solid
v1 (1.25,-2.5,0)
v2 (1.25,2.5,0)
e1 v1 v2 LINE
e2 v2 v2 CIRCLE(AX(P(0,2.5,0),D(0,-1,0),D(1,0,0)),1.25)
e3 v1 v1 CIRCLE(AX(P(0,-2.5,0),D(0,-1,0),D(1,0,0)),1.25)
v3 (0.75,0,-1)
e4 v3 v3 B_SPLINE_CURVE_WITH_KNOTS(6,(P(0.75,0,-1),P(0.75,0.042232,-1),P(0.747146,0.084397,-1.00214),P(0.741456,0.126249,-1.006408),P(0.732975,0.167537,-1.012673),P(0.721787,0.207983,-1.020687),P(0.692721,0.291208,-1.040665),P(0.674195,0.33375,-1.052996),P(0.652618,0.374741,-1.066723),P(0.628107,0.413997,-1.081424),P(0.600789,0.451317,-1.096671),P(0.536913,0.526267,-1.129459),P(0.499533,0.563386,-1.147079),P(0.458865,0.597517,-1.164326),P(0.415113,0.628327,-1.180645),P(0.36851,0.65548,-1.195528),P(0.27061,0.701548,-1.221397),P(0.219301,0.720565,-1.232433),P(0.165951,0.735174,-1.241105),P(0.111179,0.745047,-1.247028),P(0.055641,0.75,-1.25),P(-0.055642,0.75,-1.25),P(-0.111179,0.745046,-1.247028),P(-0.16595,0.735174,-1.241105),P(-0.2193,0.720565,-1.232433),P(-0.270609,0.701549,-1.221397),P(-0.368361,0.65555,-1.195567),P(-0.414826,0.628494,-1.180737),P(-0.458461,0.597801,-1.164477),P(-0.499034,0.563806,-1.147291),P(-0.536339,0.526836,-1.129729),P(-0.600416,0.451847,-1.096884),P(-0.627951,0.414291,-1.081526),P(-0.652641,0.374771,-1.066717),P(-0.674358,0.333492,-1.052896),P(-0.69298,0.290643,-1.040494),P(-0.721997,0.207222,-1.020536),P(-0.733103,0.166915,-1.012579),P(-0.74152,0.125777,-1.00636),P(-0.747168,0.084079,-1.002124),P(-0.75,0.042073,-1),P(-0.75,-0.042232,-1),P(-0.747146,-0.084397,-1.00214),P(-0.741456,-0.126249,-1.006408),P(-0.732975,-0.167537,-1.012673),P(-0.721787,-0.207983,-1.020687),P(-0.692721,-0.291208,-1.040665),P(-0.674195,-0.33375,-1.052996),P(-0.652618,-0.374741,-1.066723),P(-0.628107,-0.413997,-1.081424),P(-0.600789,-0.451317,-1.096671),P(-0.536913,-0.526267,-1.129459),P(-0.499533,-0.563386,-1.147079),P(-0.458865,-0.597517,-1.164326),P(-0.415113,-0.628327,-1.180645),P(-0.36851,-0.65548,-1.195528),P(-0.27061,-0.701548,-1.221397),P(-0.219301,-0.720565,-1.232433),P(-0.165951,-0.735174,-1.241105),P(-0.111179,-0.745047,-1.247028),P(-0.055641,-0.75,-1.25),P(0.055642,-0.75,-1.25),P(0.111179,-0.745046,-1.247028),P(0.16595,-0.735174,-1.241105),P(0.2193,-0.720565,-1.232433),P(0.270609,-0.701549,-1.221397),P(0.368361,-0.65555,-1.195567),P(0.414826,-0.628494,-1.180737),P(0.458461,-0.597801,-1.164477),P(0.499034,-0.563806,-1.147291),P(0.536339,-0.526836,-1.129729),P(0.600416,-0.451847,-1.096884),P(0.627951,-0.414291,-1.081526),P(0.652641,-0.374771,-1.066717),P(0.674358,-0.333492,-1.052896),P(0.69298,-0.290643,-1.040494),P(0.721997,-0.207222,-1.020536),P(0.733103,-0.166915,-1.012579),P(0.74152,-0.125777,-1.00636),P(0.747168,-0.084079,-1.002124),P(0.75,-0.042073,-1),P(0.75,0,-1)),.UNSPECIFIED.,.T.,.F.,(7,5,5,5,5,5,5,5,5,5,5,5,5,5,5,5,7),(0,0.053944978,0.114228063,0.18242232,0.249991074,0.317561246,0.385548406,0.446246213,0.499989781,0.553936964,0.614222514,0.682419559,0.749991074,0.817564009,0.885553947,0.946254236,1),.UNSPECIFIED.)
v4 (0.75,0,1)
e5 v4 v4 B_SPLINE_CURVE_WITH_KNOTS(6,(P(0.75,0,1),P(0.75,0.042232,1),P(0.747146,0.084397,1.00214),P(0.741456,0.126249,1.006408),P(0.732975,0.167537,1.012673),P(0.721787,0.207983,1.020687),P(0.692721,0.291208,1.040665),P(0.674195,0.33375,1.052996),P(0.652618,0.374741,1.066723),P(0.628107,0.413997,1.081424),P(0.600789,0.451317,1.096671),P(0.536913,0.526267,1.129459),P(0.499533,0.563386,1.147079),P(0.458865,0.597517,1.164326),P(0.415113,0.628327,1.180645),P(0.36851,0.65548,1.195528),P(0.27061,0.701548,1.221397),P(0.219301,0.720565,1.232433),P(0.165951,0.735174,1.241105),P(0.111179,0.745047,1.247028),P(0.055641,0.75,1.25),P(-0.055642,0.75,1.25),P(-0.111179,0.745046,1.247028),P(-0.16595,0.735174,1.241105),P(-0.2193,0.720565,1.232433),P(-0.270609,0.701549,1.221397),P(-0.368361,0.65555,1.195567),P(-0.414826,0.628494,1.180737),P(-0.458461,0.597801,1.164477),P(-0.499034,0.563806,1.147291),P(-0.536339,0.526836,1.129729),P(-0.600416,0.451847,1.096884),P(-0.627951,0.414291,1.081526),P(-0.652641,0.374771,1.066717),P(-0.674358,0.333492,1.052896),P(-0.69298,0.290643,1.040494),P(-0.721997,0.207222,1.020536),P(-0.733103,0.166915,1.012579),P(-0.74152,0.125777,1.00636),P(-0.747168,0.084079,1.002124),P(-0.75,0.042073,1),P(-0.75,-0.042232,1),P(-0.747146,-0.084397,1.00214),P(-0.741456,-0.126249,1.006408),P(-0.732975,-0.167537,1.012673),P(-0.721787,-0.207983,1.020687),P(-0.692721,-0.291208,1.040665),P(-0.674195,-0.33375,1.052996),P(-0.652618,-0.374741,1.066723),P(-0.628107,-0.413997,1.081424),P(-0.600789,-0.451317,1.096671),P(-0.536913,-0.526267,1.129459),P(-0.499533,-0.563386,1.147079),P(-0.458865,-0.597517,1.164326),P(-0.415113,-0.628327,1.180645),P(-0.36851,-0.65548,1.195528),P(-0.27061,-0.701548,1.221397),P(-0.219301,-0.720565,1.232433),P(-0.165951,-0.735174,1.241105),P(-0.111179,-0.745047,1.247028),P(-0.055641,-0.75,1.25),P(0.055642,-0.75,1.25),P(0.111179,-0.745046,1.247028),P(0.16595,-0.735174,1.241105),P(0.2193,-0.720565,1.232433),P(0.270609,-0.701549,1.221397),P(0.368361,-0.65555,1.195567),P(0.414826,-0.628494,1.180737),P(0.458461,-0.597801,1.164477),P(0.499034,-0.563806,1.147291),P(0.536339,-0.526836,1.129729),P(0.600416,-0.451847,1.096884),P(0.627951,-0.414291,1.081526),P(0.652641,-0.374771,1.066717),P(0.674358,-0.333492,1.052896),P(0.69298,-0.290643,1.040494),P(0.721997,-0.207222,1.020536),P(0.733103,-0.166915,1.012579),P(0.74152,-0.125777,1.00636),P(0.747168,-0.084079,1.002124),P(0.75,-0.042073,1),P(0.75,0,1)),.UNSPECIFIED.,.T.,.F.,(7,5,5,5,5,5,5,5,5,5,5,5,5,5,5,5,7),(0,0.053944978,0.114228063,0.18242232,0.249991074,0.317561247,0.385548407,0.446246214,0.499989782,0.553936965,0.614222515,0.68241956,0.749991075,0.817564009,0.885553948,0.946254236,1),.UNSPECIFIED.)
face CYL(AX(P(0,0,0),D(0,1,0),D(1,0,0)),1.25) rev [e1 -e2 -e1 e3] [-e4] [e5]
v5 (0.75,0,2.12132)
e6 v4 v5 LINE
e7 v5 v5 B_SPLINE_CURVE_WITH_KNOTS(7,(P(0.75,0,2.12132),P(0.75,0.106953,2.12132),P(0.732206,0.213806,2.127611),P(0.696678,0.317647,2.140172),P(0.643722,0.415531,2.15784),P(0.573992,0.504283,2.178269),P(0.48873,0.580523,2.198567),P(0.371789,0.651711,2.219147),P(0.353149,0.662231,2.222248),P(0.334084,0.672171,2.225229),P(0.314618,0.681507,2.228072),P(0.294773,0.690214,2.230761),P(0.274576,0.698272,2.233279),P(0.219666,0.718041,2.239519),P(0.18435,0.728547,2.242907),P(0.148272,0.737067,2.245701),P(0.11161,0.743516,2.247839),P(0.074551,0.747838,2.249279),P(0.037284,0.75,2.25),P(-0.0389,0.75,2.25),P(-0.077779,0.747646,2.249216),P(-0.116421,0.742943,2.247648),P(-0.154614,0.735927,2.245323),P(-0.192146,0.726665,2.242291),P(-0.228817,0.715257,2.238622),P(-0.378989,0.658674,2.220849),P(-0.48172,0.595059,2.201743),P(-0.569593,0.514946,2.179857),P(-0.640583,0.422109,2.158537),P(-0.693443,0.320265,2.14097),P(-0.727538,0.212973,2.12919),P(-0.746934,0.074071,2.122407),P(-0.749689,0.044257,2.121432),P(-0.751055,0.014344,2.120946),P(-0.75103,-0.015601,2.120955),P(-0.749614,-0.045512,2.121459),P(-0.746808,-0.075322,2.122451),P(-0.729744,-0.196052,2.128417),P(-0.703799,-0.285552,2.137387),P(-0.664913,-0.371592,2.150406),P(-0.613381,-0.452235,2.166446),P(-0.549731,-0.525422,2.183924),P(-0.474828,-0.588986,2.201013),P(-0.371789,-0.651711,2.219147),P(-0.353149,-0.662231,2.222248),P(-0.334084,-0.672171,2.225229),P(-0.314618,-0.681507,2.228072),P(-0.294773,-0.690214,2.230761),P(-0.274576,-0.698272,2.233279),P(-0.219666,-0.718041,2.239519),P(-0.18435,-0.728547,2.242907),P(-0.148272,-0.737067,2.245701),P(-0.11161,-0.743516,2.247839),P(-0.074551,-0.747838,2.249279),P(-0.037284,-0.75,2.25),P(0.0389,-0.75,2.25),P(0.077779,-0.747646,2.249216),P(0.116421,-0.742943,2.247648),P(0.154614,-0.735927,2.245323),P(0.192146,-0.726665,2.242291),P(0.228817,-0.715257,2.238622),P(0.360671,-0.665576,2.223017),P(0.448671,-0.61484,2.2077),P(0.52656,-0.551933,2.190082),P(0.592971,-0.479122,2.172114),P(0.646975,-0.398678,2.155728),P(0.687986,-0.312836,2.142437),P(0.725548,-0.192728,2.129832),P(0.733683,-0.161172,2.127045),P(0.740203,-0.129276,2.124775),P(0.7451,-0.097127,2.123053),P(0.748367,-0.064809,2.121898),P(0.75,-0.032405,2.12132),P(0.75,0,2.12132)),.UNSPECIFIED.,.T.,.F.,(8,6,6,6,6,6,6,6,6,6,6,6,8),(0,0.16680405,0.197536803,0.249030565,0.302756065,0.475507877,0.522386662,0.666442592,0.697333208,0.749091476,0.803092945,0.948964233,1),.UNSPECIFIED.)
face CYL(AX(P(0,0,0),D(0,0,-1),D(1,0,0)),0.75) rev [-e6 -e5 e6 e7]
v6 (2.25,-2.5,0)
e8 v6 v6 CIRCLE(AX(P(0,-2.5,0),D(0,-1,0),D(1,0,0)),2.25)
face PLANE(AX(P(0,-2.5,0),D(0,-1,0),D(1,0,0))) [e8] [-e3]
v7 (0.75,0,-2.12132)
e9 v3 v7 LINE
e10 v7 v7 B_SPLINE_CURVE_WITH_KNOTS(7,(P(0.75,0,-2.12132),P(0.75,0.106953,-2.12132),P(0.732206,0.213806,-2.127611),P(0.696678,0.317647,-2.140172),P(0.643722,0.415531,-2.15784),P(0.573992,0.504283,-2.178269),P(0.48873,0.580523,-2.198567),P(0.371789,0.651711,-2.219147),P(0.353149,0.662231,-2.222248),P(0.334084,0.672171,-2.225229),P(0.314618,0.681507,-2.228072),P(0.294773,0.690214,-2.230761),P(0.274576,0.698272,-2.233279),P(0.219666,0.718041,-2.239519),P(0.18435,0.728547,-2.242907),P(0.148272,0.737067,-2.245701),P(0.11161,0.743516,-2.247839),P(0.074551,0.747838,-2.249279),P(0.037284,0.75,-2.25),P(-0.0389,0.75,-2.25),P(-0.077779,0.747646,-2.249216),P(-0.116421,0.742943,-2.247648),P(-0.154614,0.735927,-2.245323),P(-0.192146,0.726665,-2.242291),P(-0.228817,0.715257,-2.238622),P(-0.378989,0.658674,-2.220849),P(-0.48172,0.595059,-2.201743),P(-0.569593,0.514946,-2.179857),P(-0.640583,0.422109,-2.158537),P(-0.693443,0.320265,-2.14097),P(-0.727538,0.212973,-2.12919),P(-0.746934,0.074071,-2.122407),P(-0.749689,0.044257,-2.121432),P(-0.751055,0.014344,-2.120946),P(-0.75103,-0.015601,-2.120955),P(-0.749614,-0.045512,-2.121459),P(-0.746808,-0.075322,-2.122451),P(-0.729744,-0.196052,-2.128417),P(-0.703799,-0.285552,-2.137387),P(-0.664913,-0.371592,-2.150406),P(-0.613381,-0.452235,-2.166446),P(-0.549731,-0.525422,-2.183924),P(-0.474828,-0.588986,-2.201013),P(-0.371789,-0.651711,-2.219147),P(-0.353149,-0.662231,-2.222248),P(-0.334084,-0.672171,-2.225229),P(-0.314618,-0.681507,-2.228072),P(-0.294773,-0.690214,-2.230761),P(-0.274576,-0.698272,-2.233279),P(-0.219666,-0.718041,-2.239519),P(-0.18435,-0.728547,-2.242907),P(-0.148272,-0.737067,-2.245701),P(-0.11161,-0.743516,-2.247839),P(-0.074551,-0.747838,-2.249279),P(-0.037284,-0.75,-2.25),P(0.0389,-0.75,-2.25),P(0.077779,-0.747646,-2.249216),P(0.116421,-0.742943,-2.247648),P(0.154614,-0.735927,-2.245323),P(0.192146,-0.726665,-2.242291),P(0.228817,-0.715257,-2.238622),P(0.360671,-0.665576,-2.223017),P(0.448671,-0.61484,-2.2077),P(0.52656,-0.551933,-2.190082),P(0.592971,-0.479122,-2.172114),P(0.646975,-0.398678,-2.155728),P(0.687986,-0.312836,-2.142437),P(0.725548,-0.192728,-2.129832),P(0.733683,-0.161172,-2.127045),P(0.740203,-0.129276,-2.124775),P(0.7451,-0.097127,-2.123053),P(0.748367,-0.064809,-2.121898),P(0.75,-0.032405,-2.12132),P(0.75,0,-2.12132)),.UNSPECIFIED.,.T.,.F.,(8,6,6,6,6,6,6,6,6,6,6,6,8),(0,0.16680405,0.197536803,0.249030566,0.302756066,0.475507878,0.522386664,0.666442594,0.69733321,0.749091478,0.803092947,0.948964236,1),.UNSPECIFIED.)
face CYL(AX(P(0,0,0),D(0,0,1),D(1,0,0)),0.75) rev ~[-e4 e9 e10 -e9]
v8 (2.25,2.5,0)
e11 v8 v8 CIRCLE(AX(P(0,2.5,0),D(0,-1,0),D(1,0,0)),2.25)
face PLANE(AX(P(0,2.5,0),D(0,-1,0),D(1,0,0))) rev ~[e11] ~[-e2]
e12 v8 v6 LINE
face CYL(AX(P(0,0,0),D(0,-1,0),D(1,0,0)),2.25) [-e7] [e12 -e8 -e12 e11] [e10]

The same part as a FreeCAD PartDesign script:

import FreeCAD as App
import Part
import Sketcher

doc = App.newDocument("Part")
body = doc.addObject("PartDesign::Body", "Body")

sketch1 = body.newObject("Sketcher::SketchObject", "Sketch")
sketch1.AttachmentSupport = (doc.getObject("XZ_Plane"), [""])
sketch1.MapMode = "FlatFace"
sketch1.addGeometry(Part.Circle(App.Vector(0, 0, 0), App.Vector(0, 0, 1), 2.25), False)
sketch1.addGeometry(Part.Circle(App.Vector(0, 0, 0), App.Vector(0, 0, 1), 1.25), False)
sketch1.addConstraint(Sketcher.Constraint("Coincident", 0, 3, -1, 1))
sketch1.addConstraint(Sketcher.Constraint("Coincident", 1, 3, -1, 1))
sketch1.addConstraint(Sketcher.Constraint("Diameter", 0, 4.5))
sketch1.addConstraint(Sketcher.Constraint("Diameter", 1, 2.5))
pad1 = body.newObject("PartDesign::Pad", "Pad")
pad1.Profile = sketch1
pad1.Length = 5
pad1.Midplane = True

sketch2 = body.newObject("Sketcher::SketchObject", "Sketch001")
sketch2.AttachmentSupport = (doc.getObject("XY_Plane"), [""])
sketch2.MapMode = "FlatFace"
sketch2.addGeometry(Part.Circle(App.Vector(0, 0, 0), App.Vector(0, 0, 1), 0.75), False)
sketch2.addConstraint(Sketcher.Constraint("Coincident", 0, 3, -1, 1))
sketch2.addConstraint(Sketcher.Constraint("Diameter", 0, 1.5))
pocket1 = body.newObject("PartDesign::Pocket", "Pocket")
pocket1.Profile = sketch2
pocket1.Type = "ThroughAll"
pocket1.Midplane = True

doc.recompute()
